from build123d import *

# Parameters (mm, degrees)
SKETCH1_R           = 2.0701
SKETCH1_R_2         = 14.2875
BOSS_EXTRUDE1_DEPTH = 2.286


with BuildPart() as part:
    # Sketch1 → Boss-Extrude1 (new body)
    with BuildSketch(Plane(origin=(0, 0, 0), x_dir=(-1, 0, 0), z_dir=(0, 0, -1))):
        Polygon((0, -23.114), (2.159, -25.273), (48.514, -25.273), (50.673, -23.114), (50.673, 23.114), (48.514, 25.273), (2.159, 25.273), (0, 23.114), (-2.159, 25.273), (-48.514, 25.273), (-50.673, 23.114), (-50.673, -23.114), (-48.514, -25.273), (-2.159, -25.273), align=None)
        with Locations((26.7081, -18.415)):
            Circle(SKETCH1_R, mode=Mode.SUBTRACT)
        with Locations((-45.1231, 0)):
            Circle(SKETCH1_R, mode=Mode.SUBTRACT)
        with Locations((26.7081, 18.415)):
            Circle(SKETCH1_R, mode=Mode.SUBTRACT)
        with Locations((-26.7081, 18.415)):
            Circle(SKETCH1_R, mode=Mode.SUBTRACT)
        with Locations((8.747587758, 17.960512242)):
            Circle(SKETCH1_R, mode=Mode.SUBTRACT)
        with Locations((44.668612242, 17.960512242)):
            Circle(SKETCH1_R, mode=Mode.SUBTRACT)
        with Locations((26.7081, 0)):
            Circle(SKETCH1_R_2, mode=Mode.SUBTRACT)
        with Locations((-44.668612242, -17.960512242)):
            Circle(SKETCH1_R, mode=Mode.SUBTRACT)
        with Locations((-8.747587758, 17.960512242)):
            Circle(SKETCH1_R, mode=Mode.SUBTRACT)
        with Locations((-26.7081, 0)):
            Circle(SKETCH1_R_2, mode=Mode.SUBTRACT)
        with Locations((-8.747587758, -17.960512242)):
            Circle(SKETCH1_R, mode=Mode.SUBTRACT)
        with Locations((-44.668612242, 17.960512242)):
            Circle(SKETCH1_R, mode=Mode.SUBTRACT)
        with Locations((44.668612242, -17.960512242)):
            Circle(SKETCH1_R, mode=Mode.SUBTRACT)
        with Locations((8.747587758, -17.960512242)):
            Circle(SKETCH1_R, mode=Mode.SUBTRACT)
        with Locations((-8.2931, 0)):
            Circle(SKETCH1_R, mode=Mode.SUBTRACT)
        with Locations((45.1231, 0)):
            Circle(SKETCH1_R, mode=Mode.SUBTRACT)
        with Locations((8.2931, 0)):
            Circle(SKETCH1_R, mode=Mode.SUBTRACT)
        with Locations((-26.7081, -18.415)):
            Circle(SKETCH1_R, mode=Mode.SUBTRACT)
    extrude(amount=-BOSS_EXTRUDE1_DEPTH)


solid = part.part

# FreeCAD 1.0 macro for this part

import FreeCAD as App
import Part
import Sketcher

V = App.Vector
Q = App.Units.Quantity


def add_polygon(sketch, points):
    """Adds a closed chain of lines whose ends are joined by coincident constraints."""
    first, n = sketch.GeometryCount, len(points)
    for a, b in zip(points, points[1:] + points[:1]):
        sketch.addGeometry(Part.LineSegment(App.Vector(*a, 0), App.Vector(*b, 0)), False)
    for i in range(n):
        sketch.addConstraint(Sketcher.Constraint("Coincident", first + i, 2, first + (i + 1) % n, 1))

doc = App.newDocument("Part")
body = doc.addObject("PartDesign::Body", "Body")

# Sketch on XY plane
sketch1 = doc.addObject("Sketcher::SketchObject", "Sketch")
body.addObject(sketch1)
sketch1.AttachmentSupport = (doc.XY_Plane, [""])
sketch1.MapMode = "FlatFace"
add_polygon(sketch1, [(0, -23.114), (-2.159, -25.273), (-48.514, -25.273), (-50.673, -23.114), (-50.673, 23.114), (-48.514, 25.273), (-2.159, 25.273), (0, 23.114), (2.159, 25.273), (48.514, 25.273), (50.673, 23.114), (50.673, -23.114), (48.514, -25.273), (2.159, -25.273)])  # lines 0-13
sketch1.addGeometry(Part.Circle(V(44.668612, -17.960512, 0), V(0, 0, 1), 2.0701), False)  # 14
sketch1.addGeometry(Part.Circle(V(26.7081, -18.415, 0), V(0, 0, 1), 2.0701), False)  # 15
sketch1.addGeometry(Part.Circle(V(8.747588, -17.960512, 0), V(0, 0, 1), 2.0701), False)  # 16
sketch1.addGeometry(Part.Circle(V(-8.747588, -17.960512, 0), V(0, 0, 1), 2.0701), False)  # 17
sketch1.addGeometry(Part.Circle(V(-26.7081, -18.415, 0), V(0, 0, 1), 2.0701), False)  # 18
sketch1.addGeometry(Part.Circle(V(-44.668612, -17.960512, 0), V(0, 0, 1), 2.0701), False)  # 19
sketch1.addGeometry(Part.Circle(V(45.1231, 0, 0), V(0, 0, 1), 2.0701), False)  # 20
sketch1.addGeometry(Part.Circle(V(26.7081, 0, 0), V(0, 0, 1), 14.2875), False)  # 21
sketch1.addGeometry(Part.Circle(V(8.2931, 0, 0), V(0, 0, 1), 2.0701), False)  # 22
sketch1.addGeometry(Part.Circle(V(44.668612, 17.960512, 0), V(0, 0, 1), 2.0701), False)  # 23
sketch1.addGeometry(Part.Circle(V(26.7081, 18.415, 0), V(0, 0, 1), 2.0701), False)  # 24
sketch1.addGeometry(Part.Circle(V(8.747588, 17.960512, 0), V(0, 0, 1), 2.0701), False)  # 25
sketch1.addGeometry(Part.Circle(V(-8.2931, 0, 0), V(0, 0, 1), 2.0701), False)  # 26
sketch1.addGeometry(Part.Circle(V(-26.7081, 0, 0), V(0, 0, 1), 14.2875), False)  # 27
sketch1.addGeometry(Part.Circle(V(-45.1231, 0, 0), V(0, 0, 1), 2.0701), False)  # 28
sketch1.addGeometry(Part.Circle(V(-8.747588, 17.960512, 0), V(0, 0, 1), 2.0701), False)  # 29
sketch1.addGeometry(Part.Circle(V(-26.7081, 18.415, 0), V(0, 0, 1), 2.0701), False)  # 30
sketch1.addGeometry(Part.Circle(V(-44.668612, 17.960512, 0), V(0, 0, 1), 2.0701), False)  # 31
sketch1.addConstraint(Sketcher.Constraint("Horizontal", 1))
sketch1.addConstraint(Sketcher.Constraint("Vertical", 3))
sketch1.addConstraint(Sketcher.Constraint("Horizontal", 5))
sketch1.addConstraint(Sketcher.Constraint("Horizontal", 8))
sketch1.addConstraint(Sketcher.Constraint("Vertical", 10))
sketch1.addConstraint(Sketcher.Constraint("Horizontal", 12))
sketch1.addConstraint(Sketcher.Constraint("Equal", 14, 15))
sketch1.addConstraint(Sketcher.Constraint("Equal", 15, 16))
sketch1.addConstraint(Sketcher.Constraint("Equal", 16, 17))
sketch1.addConstraint(Sketcher.Constraint("Equal", 17, 18))
sketch1.addConstraint(Sketcher.Constraint("Equal", 18, 19))
sketch1.addConstraint(Sketcher.Constraint("Equal", 19, 20))
sketch1.addConstraint(Sketcher.Constraint("Equal", 20, 22))
sketch1.addConstraint(Sketcher.Constraint("Equal", 22, 23))
sketch1.addConstraint(Sketcher.Constraint("Equal", 23, 24))
sketch1.addConstraint(Sketcher.Constraint("Equal", 24, 25))
sketch1.addConstraint(Sketcher.Constraint("Equal", 25, 26))
sketch1.addConstraint(Sketcher.Constraint("Equal", 21, 27))
sketch1.addConstraint(Sketcher.Constraint("Equal", 26, 28))
sketch1.addConstraint(Sketcher.Constraint("Equal", 28, 29))
sketch1.addConstraint(Sketcher.Constraint("Equal", 29, 30))
sketch1.addConstraint(Sketcher.Constraint("Equal", 30, 31))
sketch1.addConstraint(Sketcher.Constraint("Symmetric", 19, 3, 23, 3, -1, 1))
sketch1.addConstraint(Sketcher.Constraint("Symmetric", 18, 3, 24, 3, -1, 1))
sketch1.addConstraint(Sketcher.Constraint("Symmetric", 17, 3, 25, 3, -1, 1))
sketch1.addConstraint(Sketcher.Constraint("Symmetric", 22, 3, 26, 3, -1, 1))
sketch1.addConstraint(Sketcher.Constraint("Symmetric", 21, 3, 27, 3, -1, 1))
sketch1.addConstraint(Sketcher.Constraint("Symmetric", 20, 3, 28, 3, -1, 1))
sketch1.addConstraint(Sketcher.Constraint("Symmetric", 16, 3, 29, 3, -1, 1))
sketch1.addConstraint(Sketcher.Constraint("Symmetric", 15, 3, 30, 3, -1, 1))
sketch1.addConstraint(Sketcher.Constraint("Symmetric", 14, 3, 31, 3, -1, 1))
sketch1.addConstraint(Sketcher.Constraint("Symmetric", 0, 2, 7, 2, -1, 1))
sketch1.addConstraint(Sketcher.Constraint("Symmetric", 2, 2, 9, 2, -1, 1))
sketch1.addConstraint(Sketcher.Constraint("Symmetric", 4, 2, 11, 2, -1, 1))
sketch1.addConstraint(Sketcher.Constraint("Symmetric", 6, 2, 13, 2, -1, 1))
sketch1.addConstraint(Sketcher.Constraint("Symmetric", 16, 3, 17, 3, -2))
sketch1.addConstraint(Sketcher.Constraint("Symmetric", 15, 3, 18, 3, -2))
sketch1.addConstraint(Sketcher.Constraint("Symmetric", 14, 3, 19, 3, -2))
sketch1.addConstraint(Sketcher.Constraint("Symmetric", 5, 2, 7, 2, -2))
sketch1.addConstraint(Sketcher.Constraint("PointOnObject", 20, 3, -1))
sketch1.addConstraint(Sketcher.Constraint("PointOnObject", 21, 3, -1))
sketch1.addConstraint(Sketcher.Constraint("PointOnObject", 22, 3, -1))
sketch1.addConstraint(Sketcher.Constraint("PointOnObject", 6, 2, -2))
sketch1.addConstraint(Sketcher.Constraint("Perpendicular", 0, 2))
sketch1.addConstraint(Sketcher.Constraint("Perpendicular", 2, 4))
sketch1.addConstraint(Sketcher.Constraint("Perpendicular", 4, 6))
sketch1.addConstraint(Sketcher.Constraint("Perpendicular", 7, 9))
sketch1.addConstraint(Sketcher.Constraint("Perpendicular", 9, 11))
sketch1.addConstraint(Sketcher.Constraint("Perpendicular", 11, 13))
sketch1.addConstraint(Sketcher.Constraint("Horizontal", 14, 3, 16, 3))
sketch1.addConstraint(Sketcher.Constraint("Horizontal", 3, 2, 6, 2))
sketch1.addConstraint(Sketcher.Constraint("Horizontal", 6, 2, 9, 2))
sketch1.addConstraint(Sketcher.Constraint("Vertical", 15, 3, 21, 3))
sketch1.addConstraint(Sketcher.Constraint("Diameter", 14, Q("0.163 in")))
sketch1.addConstraint(Sketcher.Constraint("Diameter", 21, Q("1.125 in")))
sketch1.addConstraint(Sketcher.Constraint("DistanceY", 3, 1, 3, 2, Q("1.82 in")))
sketch1.addConstraint(Sketcher.Constraint("DistanceX", 1, 2, 1, 1, Q("1.825 in")))
sketch1.addConstraint(Sketcher.Constraint("DistanceX", 1, 2, -1, 1, Q("1.91 in")))
sketch1.addConstraint(Sketcher.Constraint("DistanceX", 22, 3, 20, 3, Q("1.45 in")))
sketch1.addConstraint(Sketcher.Constraint("DistanceY", 15, 3, 24, 3, Q("1.45 in")))
sketch1.addConstraint(Sketcher.Constraint("DistanceX", 17, 3, 14, 3, Q("2.103 in")))
sketch1.addConstraint(Sketcher.Constraint("DistanceX", 18, 3, 15, 3, Q("2.103 in")))
sketch1.addConstraint(Sketcher.Constraint("DistanceX", 15, 3, 20, 3, Q("0.725 in")))
sketch1.addConstraint(Sketcher.Constraint("DistanceX", -1, 1, 14, 3, Q("44.668612 mm")))
sketch1.addConstraint(Sketcher.Constraint("DistanceY", 14, 3, -1, 1, Q("17.960512 mm")))
pad1 = doc.addObject("PartDesign::Pad", "Pad")
body.addObject(pad1)
pad1.Profile = sketch1
pad1.Length = Q("0.09 in")

doc.recompute()
